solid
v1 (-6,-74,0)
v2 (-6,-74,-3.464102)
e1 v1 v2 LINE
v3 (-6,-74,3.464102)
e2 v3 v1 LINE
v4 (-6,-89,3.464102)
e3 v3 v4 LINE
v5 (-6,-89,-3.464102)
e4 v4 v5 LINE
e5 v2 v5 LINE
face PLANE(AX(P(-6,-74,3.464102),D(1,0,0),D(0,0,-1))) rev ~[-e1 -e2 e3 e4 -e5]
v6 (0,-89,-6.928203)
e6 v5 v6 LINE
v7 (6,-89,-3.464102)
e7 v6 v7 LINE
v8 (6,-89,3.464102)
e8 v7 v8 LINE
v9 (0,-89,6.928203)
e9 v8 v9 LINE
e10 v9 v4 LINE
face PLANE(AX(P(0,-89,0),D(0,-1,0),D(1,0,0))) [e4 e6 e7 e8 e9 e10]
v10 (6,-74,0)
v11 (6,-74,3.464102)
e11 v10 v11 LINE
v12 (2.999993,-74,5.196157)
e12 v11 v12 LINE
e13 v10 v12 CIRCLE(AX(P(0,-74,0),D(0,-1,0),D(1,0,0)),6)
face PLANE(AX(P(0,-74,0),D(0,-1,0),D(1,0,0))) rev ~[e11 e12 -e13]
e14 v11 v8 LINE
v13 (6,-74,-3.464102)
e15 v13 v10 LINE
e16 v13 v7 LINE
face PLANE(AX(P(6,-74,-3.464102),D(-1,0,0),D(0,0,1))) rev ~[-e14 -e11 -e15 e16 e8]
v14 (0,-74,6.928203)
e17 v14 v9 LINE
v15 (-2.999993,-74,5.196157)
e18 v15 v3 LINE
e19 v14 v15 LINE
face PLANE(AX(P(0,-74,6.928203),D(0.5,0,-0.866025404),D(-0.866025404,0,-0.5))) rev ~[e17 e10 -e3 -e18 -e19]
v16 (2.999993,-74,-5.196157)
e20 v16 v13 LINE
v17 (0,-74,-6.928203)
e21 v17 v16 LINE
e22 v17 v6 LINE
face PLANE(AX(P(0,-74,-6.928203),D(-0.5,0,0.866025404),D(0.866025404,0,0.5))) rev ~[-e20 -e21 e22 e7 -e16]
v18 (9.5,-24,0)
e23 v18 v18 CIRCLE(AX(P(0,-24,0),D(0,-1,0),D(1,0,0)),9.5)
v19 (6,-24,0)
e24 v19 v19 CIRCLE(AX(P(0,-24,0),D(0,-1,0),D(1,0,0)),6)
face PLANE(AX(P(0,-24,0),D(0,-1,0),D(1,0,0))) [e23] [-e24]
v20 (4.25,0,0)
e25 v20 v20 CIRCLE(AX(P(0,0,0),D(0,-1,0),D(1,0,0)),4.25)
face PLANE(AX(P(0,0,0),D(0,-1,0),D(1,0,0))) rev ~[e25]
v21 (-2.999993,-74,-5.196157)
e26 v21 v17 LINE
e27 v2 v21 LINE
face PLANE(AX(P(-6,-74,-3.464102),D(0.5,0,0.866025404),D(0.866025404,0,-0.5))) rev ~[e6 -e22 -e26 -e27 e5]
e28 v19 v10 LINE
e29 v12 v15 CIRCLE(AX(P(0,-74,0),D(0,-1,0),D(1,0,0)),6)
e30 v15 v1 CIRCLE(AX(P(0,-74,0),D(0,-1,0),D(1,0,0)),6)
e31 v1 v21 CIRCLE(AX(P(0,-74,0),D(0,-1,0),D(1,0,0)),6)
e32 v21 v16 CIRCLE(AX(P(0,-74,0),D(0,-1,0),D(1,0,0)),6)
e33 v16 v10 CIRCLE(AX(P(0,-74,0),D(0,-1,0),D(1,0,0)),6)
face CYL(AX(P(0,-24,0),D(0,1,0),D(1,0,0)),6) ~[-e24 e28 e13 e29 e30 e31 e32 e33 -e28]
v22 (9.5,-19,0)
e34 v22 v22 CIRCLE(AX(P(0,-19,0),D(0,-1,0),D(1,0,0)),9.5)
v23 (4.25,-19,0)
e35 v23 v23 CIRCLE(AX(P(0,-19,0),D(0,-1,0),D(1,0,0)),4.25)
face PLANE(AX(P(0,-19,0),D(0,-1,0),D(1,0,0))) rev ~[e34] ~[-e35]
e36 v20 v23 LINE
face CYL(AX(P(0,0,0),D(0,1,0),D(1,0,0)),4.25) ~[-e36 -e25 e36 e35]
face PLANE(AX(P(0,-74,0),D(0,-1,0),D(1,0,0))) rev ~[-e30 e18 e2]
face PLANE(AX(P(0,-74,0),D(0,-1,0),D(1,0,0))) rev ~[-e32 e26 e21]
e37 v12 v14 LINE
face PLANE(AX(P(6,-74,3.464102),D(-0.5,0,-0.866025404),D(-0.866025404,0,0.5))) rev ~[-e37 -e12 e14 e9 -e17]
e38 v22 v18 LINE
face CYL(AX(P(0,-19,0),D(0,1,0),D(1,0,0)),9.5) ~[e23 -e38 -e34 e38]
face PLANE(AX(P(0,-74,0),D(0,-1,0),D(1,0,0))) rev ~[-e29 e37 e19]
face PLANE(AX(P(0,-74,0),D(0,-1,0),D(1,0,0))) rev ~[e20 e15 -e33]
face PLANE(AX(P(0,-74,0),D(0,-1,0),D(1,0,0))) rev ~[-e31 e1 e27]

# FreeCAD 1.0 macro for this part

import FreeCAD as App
import Part
import Sketcher

V = App.Vector
Q = App.Units.Quantity

doc = App.newDocument("Part")
body = doc.addObject("PartDesign::Body", "Body")

# Sketch on XZ plane
sketch1 = body.newObject("Sketcher::SketchObject", "Sketch")
sketch1.AttachmentSupport = (doc.getObject("XZ_Plane"), [""])
sketch1.MapMode = "FlatFace"
sketch1.addGeometry(Part.Circle(V(0, 0, 0), V(0, 0, 1), 4.2), False)
sketch1.addConstraint([
    Sketcher.Constraint("Coincident", 0, 3, -1, 1),
    Sketcher.Constraint("Diameter", 0, 8.5),
])
pad1 = body.newObject("PartDesign::Pad", "Pad")
pad1.Profile = sketch1
pad1.Length = 19

# Sketch on XZ plane
sketch2 = body.newObject("Sketcher::SketchObject", "Sketch001")
sketch2.AttachmentSupport = (doc.getObject("XZ_Plane"), [""])
sketch2.MapMode = "FlatFace"
sketch2.AttachmentOffset = App.Placement(V(0, 0, 19), App.Rotation())
sketch2.addGeometry(Part.Circle(V(0, 0, 0), V(0, 0, 1), 10), False)
sketch2.addConstraint([
    Sketcher.Constraint("Coincident", 0, 3, -1, 1),
    Sketcher.Constraint("Diameter", 0, 19.0),
])
pad2 = body.newObject("PartDesign::Pad", "Pad001")
pad2.Profile = sketch2
pad2.Length = 5

# Sketch on XZ plane
sketch3 = body.newObject("Sketcher::SketchObject", "Sketch002")
sketch3.AttachmentSupport = (doc.getObject("XZ_Plane"), [""])
sketch3.MapMode = "FlatFace"
sketch3.AttachmentOffset = App.Placement(V(0, 0, 24), App.Rotation())
sketch3.addGeometry(Part.Circle(V(0, 0, 0), V(0, 0, 1), 6), False)
sketch3.addConstraint([
    Sketcher.Constraint("Coincident", 0, 3, -1, 1),
    Sketcher.Constraint("Diameter", 0, 12.0),
])
pad3 = body.newObject("PartDesign::Pad", "Pad002")
pad3.Profile = sketch3
pad3.Length = 50

# Sketch on XZ plane
sketch4 = body.newObject("Sketcher::SketchObject", "Sketch003")
sketch4.AttachmentSupport = (doc.getObject("XZ_Plane"), [""])
sketch4.MapMode = "FlatFace"
sketch4.AttachmentOffset = App.Placement(V(0, 0, 74), App.Rotation())
sketch4.addGeometry([
    Part.LineSegment(V(6, -3, 0), V(6, 3, 0)),  # 0
    Part.LineSegment(V(6, 3, 0), V(0, 7, 0)),  # 1
    Part.LineSegment(V(0, 7, 0), V(-6, 3, 0)),  # 2
    Part.LineSegment(V(-6, 3, 0), V(-6, -3, 0)),  # 3
    Part.LineSegment(V(-6, -3, 0), V(0, -7, 0)),  # 4
    Part.LineSegment(V(0, -7, 0), V(6, -3, 0)),  # 5
], False)
sketch4.addConstraint([
    Sketcher.Constraint("Coincident", 0, 2, 1, 1),
    Sketcher.Constraint("Coincident", 1, 2, 2, 1),
    Sketcher.Constraint("Coincident", 2, 2, 3, 1),
    Sketcher.Constraint("Coincident", 3, 2, 4, 1),
    Sketcher.Constraint("Coincident", 4, 2, 5, 1),
    Sketcher.Constraint("Coincident", 5, 2, 0, 1),
    Sketcher.Constraint("Vertical", 0),
    Sketcher.Constraint("Vertical", 3),
    Sketcher.Constraint("Symmetric", 0, 2, 3, 2, -1, 1),
    Sketcher.Constraint("Symmetric", 1, 2, 4, 2, -1, 1),
    Sketcher.Constraint("PointOnObject", 1, 2, -2),
    Sketcher.Constraint("Parallel", 2, 5),
    Sketcher.Constraint("Horizontal", 0, 2, 2, 2),
    Sketcher.Constraint("Angle", 1, Q("150 deg")),
    Sketcher.Constraint("DistanceX", -1, 1, 0, 2, 6.0),
    Sketcher.Constraint("DistanceY", -1, 1, 0, 2, 3.464102),
])
pad4 = body.newObject("PartDesign::Pad", "Pad003")
pad4.Profile = sketch4
pad4.Length = 15

doc.recompute()
